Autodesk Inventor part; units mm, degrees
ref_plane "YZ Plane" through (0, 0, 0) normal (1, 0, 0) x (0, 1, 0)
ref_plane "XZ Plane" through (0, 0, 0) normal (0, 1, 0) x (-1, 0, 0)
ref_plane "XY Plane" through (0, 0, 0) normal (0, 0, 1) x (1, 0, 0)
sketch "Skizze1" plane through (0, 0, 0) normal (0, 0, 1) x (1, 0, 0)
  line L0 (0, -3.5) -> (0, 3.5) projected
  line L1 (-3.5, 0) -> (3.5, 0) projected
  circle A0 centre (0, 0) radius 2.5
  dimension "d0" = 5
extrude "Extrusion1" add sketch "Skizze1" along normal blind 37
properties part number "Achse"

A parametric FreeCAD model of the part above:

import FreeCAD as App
import Part
import Sketcher

V = App.Vector

doc = App.newDocument("Part")
body = doc.addObject("PartDesign::Body", "Body")

# Sketch on XY plane
sketch1 = body.newObject("Sketcher::SketchObject", "Sketch")
sketch1.AttachmentSupport = (doc.getObject("XY_Plane"), [""])
sketch1.MapMode = "FlatFace"
sketch1.addGeometry(Part.Circle(V(0, 0, 0), V(0, 0, 1), 2.5), False)
sketch1.addConstraint(Sketcher.Constraint("Coincident", 0, 3, -1, 1))
sketch1.addConstraint(Sketcher.Constraint("Diameter", 0, 5.0))
pad1 = body.newObject("PartDesign::Pad", "Pad")
pad1.Profile = sketch1
pad1.Length = 37

doc.recompute()
